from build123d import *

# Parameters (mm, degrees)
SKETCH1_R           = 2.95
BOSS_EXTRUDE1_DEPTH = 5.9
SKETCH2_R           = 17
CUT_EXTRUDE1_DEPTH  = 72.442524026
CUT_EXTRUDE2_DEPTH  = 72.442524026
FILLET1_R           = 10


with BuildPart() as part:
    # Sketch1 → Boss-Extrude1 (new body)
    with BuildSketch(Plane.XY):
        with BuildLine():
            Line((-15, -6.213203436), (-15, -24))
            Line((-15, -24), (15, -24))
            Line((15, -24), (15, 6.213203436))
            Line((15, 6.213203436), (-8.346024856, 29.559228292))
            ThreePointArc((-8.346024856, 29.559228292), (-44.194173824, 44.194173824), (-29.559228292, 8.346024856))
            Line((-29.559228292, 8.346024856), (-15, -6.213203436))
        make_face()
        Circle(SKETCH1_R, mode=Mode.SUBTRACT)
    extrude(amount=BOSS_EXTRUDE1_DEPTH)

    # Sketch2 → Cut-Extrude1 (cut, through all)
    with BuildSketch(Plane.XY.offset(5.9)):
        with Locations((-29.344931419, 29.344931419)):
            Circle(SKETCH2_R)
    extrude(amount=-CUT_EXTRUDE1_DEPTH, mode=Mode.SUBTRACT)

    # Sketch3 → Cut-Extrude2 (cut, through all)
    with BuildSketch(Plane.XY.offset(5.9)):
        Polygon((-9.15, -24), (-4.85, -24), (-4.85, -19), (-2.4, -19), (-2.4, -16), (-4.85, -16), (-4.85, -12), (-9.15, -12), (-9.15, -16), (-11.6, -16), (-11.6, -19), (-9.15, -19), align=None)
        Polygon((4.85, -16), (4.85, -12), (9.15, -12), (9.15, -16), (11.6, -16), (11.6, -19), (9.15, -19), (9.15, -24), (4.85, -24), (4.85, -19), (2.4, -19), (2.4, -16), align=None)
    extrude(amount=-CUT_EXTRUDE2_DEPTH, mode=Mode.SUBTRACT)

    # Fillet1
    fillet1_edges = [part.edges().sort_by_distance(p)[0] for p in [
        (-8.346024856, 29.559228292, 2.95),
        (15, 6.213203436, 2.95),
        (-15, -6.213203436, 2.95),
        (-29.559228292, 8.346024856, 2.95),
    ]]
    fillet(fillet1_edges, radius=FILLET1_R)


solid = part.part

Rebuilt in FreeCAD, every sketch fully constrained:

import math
import FreeCAD as App
import Part
import Sketcher

V = App.Vector
Q = App.Units.Quantity


def edges_at(feature, points):
    """Names of the edges that pass closest to the given points."""
    edges = feature.Shape.Edges
    near = lambda p: min(range(len(edges)), key=lambda i: edges[i].distToShape(Part.Vertex(*p))[0])
    return sorted({f"Edge{near(p) + 1}" for p in points})

doc = App.newDocument("Part")
params = doc.addObject("Spreadsheet::Sheet", "Params")
for row, (alias, value) in enumerate([
    ("sketch1_radius", "21 mm"),
    ("sketch1_diameter", "5.9 mm"),
    ("sketch1_width", "30 mm"),
    ("pad1_length", "5.9 mm"),
    ("sketch2_diameter", "34 mm"),
    ("sketch3_height", "5 mm"),
    ("sketch3_height2", "3 mm"),
    ("sketch3_height3", "4 mm"),
    ("sketch3_width", "4.3 mm"),
    ("sketch3_width2", "2.45 mm"),
    ("fillet_radius", "10 mm"),
], start=1):
    params.set(f"A{row}", alias)
    params.set(f"B{row}", "=" + value)
    params.setAlias(f"B{row}", alias)

body = doc.addObject("PartDesign::Body", "Body")

# Sketch on XY plane
sketch1 = body.newObject("Sketcher::SketchObject", "Sketch")
sketch1.AttachmentSupport = (doc.getObject("XY_Plane"), [""])
sketch1.MapMode = "FlatFace"
sketch1.addGeometry([
    Part.LineSegment(V(-15, -6.213203, 0), V(-15, -24, 0)),  # 0
    Part.LineSegment(V(-15, -24, 0), V(15, -24, 0)),  # 1
    Part.LineSegment(V(15, -24, 0), V(15, 6.213203, 0)),  # 2
    Part.LineSegment(V(15, 6.213203, 0), V(-8.346025, 29.559228, 0)),  # 3
    Part.ArcOfCircle(Part.Circle(V(-29.344931, 29.344931, 0), V(0, 0, 1), 21), math.radians(0.584691), math.radians(269.415309)),  # 4
    Part.LineSegment(V(-29.559228, 8.346025, 0), V(-15, -6.213203, 0)),  # 5
    Part.Circle(V(0, 0, 0), V(0, 0, 1), 2.95),  # 6
], False)
sketch1.addConstraint([
    Sketcher.Constraint("Coincident", 0, 2, 1, 1),
    Sketcher.Constraint("Coincident", 1, 2, 2, 1),
    Sketcher.Constraint("Coincident", 2, 2, 3, 1),
    Sketcher.Constraint("Coincident", 3, 2, 4, 1),
    Sketcher.Constraint("Coincident", 4, 2, 5, 1),
    Sketcher.Constraint("Coincident", 5, 2, 0, 1),
    Sketcher.Constraint("Vertical", 0),
    Sketcher.Constraint("Horizontal", 1),
    Sketcher.Constraint("Vertical", 2),
    Sketcher.Constraint("Coincident", 6, 3, -1, 1),
    Sketcher.Constraint("Symmetric", 2, 2, 5, 2, -1, 1),
    Sketcher.Constraint("Parallel", 3, 5),
    Sketcher.Constraint("Radius", 4, Q("21 mm")),
    Sketcher.Constraint("Diameter", 6, Q("5.9 mm")),
    Sketcher.Constraint("DistanceX", 1, 1, 1, 2, Q("30 mm")),
    Sketcher.Constraint("Angle", 3, Q("135 deg")),
    Sketcher.Constraint("DistanceY", 0, 2, -1, 1, Q("24 mm")),
    Sketcher.Constraint("Distance", 5, Q("20.589858 mm")),
    Sketcher.Constraint("DistanceY", 0, 2, 0, 1, Q("17.786797 mm")),
    Sketcher.Constraint("DistanceX", 4, 3, -1, 1, Q("29.344931 mm")),
])
sketch1.setExpression("Constraints[12]", "Params.sketch1_radius")
sketch1.setExpression("Constraints[13]", "Params.sketch1_diameter")
sketch1.setExpression("Constraints[14]", "Params.sketch1_width")
pad1 = body.newObject("PartDesign::Pad", "Pad")
pad1.Profile = sketch1
pad1.setExpression("Length", "Params.pad1_length")

# Sketch on XY plane
sketch2 = body.newObject("Sketcher::SketchObject", "Sketch001")
sketch2.AttachmentSupport = (doc.getObject("XY_Plane"), [""])
sketch2.MapMode = "FlatFace"
sketch2.AttachmentOffset = App.Placement(V(0, 0, 5.9), App.Rotation())
sketch2.addGeometry(Part.Circle(V(-29.344931, 29.344931, 0), V(0, 0, 1), 17), False)
sketch2.addConstraint([
    Sketcher.Constraint("Diameter", 0, Q("34 mm")),
    Sketcher.Constraint("DistanceX", 0, 3, -1, 1, Q("29.344931 mm")),
    Sketcher.Constraint("DistanceY", -1, 1, 0, 3, Q("29.344931 mm")),
])
sketch2.setExpression("Constraints[0]", "Params.sketch2_diameter")
pocket1 = body.newObject("PartDesign::Pocket", "Pocket")
pocket1.Profile = sketch2
pocket1.Type = "ThroughAll"

# Sketch on XY plane
sketch3 = body.newObject("Sketcher::SketchObject", "Sketch002")
sketch3.AttachmentSupport = (doc.getObject("XY_Plane"), [""])
sketch3.MapMode = "FlatFace"
sketch3.AttachmentOffset = App.Placement(V(0, 0, 5.9), App.Rotation())
sketch3.addGeometry([
    Part.LineSegment(V(-9.15, -24, 0), V(-4.85, -24, 0)),  # 0
    Part.LineSegment(V(-4.85, -24, 0), V(-4.85, -19, 0)),  # 1
    Part.LineSegment(V(-4.85, -19, 0), V(-2.4, -19, 0)),  # 2
    Part.LineSegment(V(-2.4, -19, 0), V(-2.4, -16, 0)),  # 3
    Part.LineSegment(V(-2.4, -16, 0), V(-4.85, -16, 0)),  # 4
    Part.LineSegment(V(-4.85, -16, 0), V(-4.85, -12, 0)),  # 5
    Part.LineSegment(V(-4.85, -12, 0), V(-9.15, -12, 0)),  # 6
    Part.LineSegment(V(-9.15, -12, 0), V(-9.15, -16, 0)),  # 7
    Part.LineSegment(V(-9.15, -16, 0), V(-11.6, -16, 0)),  # 8
    Part.LineSegment(V(-11.6, -16, 0), V(-11.6, -19, 0)),  # 9
    Part.LineSegment(V(-11.6, -19, 0), V(-9.15, -19, 0)),  # 10
    Part.LineSegment(V(-9.15, -19, 0), V(-9.15, -24, 0)),  # 11
    Part.LineSegment(V(4.85, -12, 0), V(4.85, -16, 0)),  # 12
    Part.LineSegment(V(4.85, -16, 0), V(2.4, -16, 0)),  # 13
    Part.LineSegment(V(2.4, -16, 0), V(2.4, -19, 0)),  # 14
    Part.LineSegment(V(2.4, -19, 0), V(4.85, -19, 0)),  # 15
    Part.LineSegment(V(4.85, -19, 0), V(4.85, -24, 0)),  # 16
    Part.LineSegment(V(4.85, -24, 0), V(9.15, -24, 0)),  # 17
    Part.LineSegment(V(9.15, -24, 0), V(9.15, -19, 0)),  # 18
    Part.LineSegment(V(9.15, -19, 0), V(11.6, -19, 0)),  # 19
    Part.LineSegment(V(11.6, -19, 0), V(11.6, -16, 0)),  # 20
    Part.LineSegment(V(11.6, -16, 0), V(9.15, -16, 0)),  # 21
    Part.LineSegment(V(9.15, -16, 0), V(9.15, -12, 0)),  # 22
    Part.LineSegment(V(9.15, -12, 0), V(4.85, -12, 0)),  # 23
], False)
sketch3.addConstraint([
    Sketcher.Constraint("Coincident", 0, 2, 1, 1),
    Sketcher.Constraint("Coincident", 1, 2, 2, 1),
    Sketcher.Constraint("Coincident", 2, 2, 3, 1),
    Sketcher.Constraint("Coincident", 3, 2, 4, 1),
    Sketcher.Constraint("Coincident", 4, 2, 5, 1),
    Sketcher.Constraint("Coincident", 5, 2, 6, 1),
    Sketcher.Constraint("Coincident", 6, 2, 7, 1),
    Sketcher.Constraint("Coincident", 7, 2, 8, 1),
    Sketcher.Constraint("Coincident", 8, 2, 9, 1),
    Sketcher.Constraint("Coincident", 9, 2, 10, 1),
    Sketcher.Constraint("Coincident", 10, 2, 11, 1),
    Sketcher.Constraint("Coincident", 11, 2, 0, 1),
    Sketcher.Constraint("Coincident", 12, 2, 13, 1),
    Sketcher.Constraint("Coincident", 13, 2, 14, 1),
    Sketcher.Constraint("Coincident", 14, 2, 15, 1),
    Sketcher.Constraint("Coincident", 15, 2, 16, 1),
    Sketcher.Constraint("Coincident", 16, 2, 17, 1),
    Sketcher.Constraint("Coincident", 17, 2, 18, 1),
    Sketcher.Constraint("Coincident", 18, 2, 19, 1),
    Sketcher.Constraint("Coincident", 19, 2, 20, 1),
    Sketcher.Constraint("Coincident", 20, 2, 21, 1),
    Sketcher.Constraint("Coincident", 21, 2, 22, 1),
    Sketcher.Constraint("Coincident", 22, 2, 23, 1),
    Sketcher.Constraint("Coincident", 23, 2, 12, 1),
    Sketcher.Constraint("Horizontal", 0),
    Sketcher.Constraint("Vertical", 1),
    Sketcher.Constraint("Horizontal", 2),
    Sketcher.Constraint("Vertical", 3),
    Sketcher.Constraint("Horizontal", 4),
    Sketcher.Constraint("Vertical", 5),
    Sketcher.Constraint("Horizontal", 6),
    Sketcher.Constraint("Vertical", 7),
    Sketcher.Constraint("Horizontal", 8),
    Sketcher.Constraint("Vertical", 9),
    Sketcher.Constraint("Horizontal", 10),
    Sketcher.Constraint("Vertical", 11),
    Sketcher.Constraint("Vertical", 12),
    Sketcher.Constraint("Horizontal", 13),
    Sketcher.Constraint("Vertical", 14),
    Sketcher.Constraint("Horizontal", 15),
    Sketcher.Constraint("Vertical", 16),
    Sketcher.Constraint("Horizontal", 17),
    Sketcher.Constraint("Vertical", 18),
    Sketcher.Constraint("Horizontal", 19),
    Sketcher.Constraint("Vertical", 20),
    Sketcher.Constraint("Horizontal", 21),
    Sketcher.Constraint("Vertical", 22),
    Sketcher.Constraint("Horizontal", 23),
    Sketcher.Constraint("Symmetric", 4, 2, 12, 2, -2),
    Sketcher.Constraint("Symmetric", 2, 2, 14, 2, -2),
    Sketcher.Constraint("Symmetric", 0, 2, 16, 2, -2),
    Sketcher.Constraint("Symmetric", 10, 2, 18, 2, -2),
    Sketcher.Constraint("Symmetric", 8, 2, 20, 2, -2),
    Sketcher.Constraint("Symmetric", 6, 2, 22, 2, -2),
    Sketcher.Constraint("Horizontal", 4, 2, 7, 2),
    Sketcher.Constraint("Horizontal", 2, 2, 9, 2),
    Sketcher.Constraint("Vertical", 1, 2, 4, 2),
    Sketcher.Constraint("Vertical", 7, 2, 10, 2),
    Sketcher.Constraint("Equal", 4, 8),
    Sketcher.Constraint("DistanceY", 1, 1, 1, 2, Q("5 mm")),
    Sketcher.Constraint("DistanceY", 3, 1, 3, 2, Q("3 mm")),
    Sketcher.Constraint("DistanceY", 5, 1, 5, 2, Q("4 mm")),
    Sketcher.Constraint("DistanceX", 0, 1, 0, 2, Q("4.3 mm")),
    Sketcher.Constraint("DistanceY", 0, 2, -1, 1, Q("24 mm")),
    Sketcher.Constraint("DistanceX", 2, 1, 2, 2, Q("2.45 mm")),
    Sketcher.Constraint("DistanceX", 2, 2, -1, 1, Q("2.4 mm")),
])
sketch3.setExpression("Constraints[59]", "Params.sketch3_height")
sketch3.setExpression("Constraints[60]", "Params.sketch3_height2")
sketch3.setExpression("Constraints[61]", "Params.sketch3_height3")
sketch3.setExpression("Constraints[62]", "Params.sketch3_width")
sketch3.setExpression("Constraints[64]", "Params.sketch3_width2")
pocket2 = body.newObject("PartDesign::Pocket", "Pocket001")
pocket2.Profile = sketch3
pocket2.Type = "ThroughAll"
doc.recompute()

fillet = body.newObject("PartDesign::Fillet", "Fillet")
fillet.Base = (pocket2, edges_at(pocket2, [
    (-8.346, 29.559, 2.95),
    (15, 6.213, 2.95),
    (-15, -6.213, 2.95),
    (-29.559, 8.346, 2.95),
]))
fillet.setExpression("Radius", "Params.fillet_radius")

doc.recompute()
